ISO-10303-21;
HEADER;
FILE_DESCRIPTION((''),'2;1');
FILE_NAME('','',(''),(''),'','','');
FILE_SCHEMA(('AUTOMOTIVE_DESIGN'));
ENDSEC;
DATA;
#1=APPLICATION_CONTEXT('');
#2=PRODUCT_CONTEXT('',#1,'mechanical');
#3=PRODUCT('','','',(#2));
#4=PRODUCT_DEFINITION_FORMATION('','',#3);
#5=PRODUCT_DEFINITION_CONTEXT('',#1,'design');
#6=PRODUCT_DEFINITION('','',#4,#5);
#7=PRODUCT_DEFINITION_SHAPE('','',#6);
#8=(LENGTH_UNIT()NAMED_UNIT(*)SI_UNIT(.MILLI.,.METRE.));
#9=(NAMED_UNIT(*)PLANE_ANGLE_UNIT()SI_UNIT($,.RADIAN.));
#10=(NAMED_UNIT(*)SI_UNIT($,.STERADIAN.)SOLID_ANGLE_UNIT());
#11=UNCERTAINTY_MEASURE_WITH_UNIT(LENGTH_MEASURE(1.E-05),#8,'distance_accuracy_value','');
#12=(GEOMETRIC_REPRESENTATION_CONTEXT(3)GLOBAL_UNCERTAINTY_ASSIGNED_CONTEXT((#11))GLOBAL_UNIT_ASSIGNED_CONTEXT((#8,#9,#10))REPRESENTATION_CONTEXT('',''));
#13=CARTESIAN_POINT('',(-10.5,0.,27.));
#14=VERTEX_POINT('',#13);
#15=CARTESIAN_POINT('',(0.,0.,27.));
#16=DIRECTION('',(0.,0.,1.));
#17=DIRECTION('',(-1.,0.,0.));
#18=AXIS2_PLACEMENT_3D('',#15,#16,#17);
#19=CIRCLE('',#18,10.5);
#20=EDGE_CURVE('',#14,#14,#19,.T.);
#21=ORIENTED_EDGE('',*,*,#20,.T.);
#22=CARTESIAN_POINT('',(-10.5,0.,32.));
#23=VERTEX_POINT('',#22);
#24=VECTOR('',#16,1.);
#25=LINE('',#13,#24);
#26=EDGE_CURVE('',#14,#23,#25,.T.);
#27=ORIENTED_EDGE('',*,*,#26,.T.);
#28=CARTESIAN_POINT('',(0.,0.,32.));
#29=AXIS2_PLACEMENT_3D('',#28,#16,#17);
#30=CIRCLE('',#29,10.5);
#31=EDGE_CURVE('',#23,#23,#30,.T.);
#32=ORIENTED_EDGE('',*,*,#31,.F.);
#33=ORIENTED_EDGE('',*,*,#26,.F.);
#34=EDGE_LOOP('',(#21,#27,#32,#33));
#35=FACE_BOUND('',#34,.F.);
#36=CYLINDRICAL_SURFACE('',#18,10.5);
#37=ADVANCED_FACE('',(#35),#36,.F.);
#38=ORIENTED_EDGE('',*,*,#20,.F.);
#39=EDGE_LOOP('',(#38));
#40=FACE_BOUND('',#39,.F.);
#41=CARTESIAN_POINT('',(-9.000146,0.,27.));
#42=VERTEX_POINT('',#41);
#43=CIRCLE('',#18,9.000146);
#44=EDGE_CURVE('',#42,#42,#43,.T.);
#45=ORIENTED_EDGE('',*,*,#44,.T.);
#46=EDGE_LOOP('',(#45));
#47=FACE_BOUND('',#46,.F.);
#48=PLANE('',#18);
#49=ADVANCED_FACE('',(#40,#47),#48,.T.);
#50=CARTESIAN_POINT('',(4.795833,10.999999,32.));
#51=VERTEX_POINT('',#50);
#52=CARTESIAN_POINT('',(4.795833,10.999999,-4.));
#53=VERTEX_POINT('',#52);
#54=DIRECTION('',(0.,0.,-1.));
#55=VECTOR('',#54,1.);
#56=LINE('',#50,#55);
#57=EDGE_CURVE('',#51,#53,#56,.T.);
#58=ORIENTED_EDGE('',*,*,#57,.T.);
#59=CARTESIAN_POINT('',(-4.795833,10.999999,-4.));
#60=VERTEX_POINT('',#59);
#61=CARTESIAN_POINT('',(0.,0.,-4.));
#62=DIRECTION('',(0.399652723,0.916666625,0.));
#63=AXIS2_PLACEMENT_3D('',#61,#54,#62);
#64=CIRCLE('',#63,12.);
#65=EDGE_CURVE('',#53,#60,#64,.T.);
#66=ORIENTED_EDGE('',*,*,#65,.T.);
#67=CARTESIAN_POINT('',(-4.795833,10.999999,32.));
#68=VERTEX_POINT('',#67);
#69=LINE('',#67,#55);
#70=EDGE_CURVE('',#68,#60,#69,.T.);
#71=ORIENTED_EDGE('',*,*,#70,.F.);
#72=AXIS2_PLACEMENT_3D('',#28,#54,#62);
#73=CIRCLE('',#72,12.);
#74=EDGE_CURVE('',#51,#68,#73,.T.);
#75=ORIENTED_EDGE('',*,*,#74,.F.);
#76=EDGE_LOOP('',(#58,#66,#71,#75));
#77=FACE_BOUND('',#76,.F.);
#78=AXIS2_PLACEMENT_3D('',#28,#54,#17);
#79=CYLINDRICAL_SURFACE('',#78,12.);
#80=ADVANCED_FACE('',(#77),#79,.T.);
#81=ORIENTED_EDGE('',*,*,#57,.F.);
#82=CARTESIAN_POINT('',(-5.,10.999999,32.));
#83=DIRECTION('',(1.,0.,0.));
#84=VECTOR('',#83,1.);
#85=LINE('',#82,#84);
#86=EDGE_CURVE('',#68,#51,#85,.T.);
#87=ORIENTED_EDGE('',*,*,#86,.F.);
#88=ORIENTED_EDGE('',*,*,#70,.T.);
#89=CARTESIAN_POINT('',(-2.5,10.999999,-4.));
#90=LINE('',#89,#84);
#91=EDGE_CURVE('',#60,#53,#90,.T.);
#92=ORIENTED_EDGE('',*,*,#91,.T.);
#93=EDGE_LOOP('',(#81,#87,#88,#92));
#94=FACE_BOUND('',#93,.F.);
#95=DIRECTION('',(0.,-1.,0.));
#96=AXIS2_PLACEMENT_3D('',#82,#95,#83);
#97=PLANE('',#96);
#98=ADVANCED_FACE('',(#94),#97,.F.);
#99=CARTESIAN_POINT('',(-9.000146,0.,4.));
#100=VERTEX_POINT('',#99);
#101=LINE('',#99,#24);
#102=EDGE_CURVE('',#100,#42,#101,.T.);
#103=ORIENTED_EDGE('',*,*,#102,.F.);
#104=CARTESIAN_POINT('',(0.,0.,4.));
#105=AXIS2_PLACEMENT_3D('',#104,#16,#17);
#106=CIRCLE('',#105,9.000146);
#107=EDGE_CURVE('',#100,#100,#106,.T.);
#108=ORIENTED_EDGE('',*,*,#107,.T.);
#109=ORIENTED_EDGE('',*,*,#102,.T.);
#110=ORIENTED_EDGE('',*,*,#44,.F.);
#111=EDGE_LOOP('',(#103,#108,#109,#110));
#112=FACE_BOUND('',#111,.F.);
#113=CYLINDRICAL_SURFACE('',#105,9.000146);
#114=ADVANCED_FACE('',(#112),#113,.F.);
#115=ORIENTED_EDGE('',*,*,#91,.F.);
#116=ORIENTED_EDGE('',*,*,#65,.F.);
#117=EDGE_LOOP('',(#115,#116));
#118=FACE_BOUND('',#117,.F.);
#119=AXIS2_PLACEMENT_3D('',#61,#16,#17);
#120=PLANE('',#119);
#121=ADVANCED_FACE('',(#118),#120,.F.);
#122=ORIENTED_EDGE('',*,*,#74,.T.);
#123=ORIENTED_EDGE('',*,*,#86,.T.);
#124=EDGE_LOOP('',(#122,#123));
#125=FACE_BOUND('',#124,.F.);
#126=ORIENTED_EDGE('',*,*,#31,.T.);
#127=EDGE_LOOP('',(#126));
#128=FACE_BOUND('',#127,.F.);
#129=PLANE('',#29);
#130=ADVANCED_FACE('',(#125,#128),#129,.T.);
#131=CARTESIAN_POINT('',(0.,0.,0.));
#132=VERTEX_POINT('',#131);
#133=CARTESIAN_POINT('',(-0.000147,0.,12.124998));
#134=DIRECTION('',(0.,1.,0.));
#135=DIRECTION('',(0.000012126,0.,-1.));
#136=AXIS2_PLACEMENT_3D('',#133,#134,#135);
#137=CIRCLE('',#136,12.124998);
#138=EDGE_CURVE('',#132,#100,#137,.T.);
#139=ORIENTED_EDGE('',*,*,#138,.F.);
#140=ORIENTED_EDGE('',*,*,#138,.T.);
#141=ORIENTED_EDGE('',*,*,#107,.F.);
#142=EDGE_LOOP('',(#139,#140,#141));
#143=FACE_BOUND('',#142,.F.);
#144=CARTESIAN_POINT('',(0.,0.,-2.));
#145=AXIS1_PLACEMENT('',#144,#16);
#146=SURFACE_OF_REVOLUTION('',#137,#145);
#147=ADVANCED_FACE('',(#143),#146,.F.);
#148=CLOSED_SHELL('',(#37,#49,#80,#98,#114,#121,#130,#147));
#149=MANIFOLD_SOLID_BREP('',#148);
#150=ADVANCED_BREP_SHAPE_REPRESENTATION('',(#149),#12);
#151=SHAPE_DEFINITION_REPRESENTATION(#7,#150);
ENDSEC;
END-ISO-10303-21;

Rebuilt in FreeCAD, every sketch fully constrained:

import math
import FreeCAD as App
import Part
import Sketcher
from FreeCAD import Vector


def add_polygon(sketch, points):
    """Adds a closed chain of lines whose ends are joined by coincident constraints."""
    first, n = sketch.GeometryCount, len(points)
    for a, b in zip(points, points[1:] + points[:1]):
        sketch.addGeometry(Part.LineSegment(App.Vector(*a, 0), App.Vector(*b, 0)), False)
    for i in range(n):
        sketch.addConstraint(Sketcher.Constraint("Coincident", first + i, 2, first + (i + 1) % n, 1))

doc = App.newDocument("Part")
body = doc.addObject("PartDesign::Body", "Body")

sketch1 = body.newObject("Sketcher::SketchObject", "Sketch")
sketch1.AttachmentSupport = (doc.getObject("XZ_Plane"), [""])
sketch1.MapMode = "FlatFace"
sketch1.addGeometry(Part.LineSegment(Vector(-12, -4, 0), Vector(0, -4, 0)), False)
sketch1.addGeometry(Part.LineSegment(Vector(0, -4, 0), Vector(0, 0, 0)), False)
sketch1.addGeometry(Part.ArcOfCircle(Part.Circle(Vector(-0.000147, 12.124998, 0), Vector(0, 0, 1), 12.124998), math.radians(-137.924983), math.radians(-89.999305)), False)
sketch1.addGeometry(Part.LineSegment(Vector(-9.000146, 4, 0), Vector(-9.000146, 27, 0)), False)
sketch1.addGeometry(Part.LineSegment(Vector(-9.000146, 27, 0), Vector(-10.5, 27, 0)), False)
sketch1.addGeometry(Part.LineSegment(Vector(-10.5, 27, 0), Vector(-10.5, 32, 0)), False)
sketch1.addGeometry(Part.LineSegment(Vector(-10.5, 32, 0), Vector(-12, 32, 0)), False)
sketch1.addGeometry(Part.LineSegment(Vector(-12, 32, 0), Vector(-12, -4, 0)), False)
sketch1.addConstraint(Sketcher.Constraint("Coincident", 0, 2, 1, 1))
sketch1.addConstraint(Sketcher.Constraint("Coincident", 1, 2, 2, 2))
sketch1.addConstraint(Sketcher.Constraint("Coincident", 2, 1, 3, 1))
sketch1.addConstraint(Sketcher.Constraint("Coincident", 3, 2, 4, 1))
sketch1.addConstraint(Sketcher.Constraint("Coincident", 4, 2, 5, 1))
sketch1.addConstraint(Sketcher.Constraint("Coincident", 5, 2, 6, 1))
sketch1.addConstraint(Sketcher.Constraint("Coincident", 6, 2, 7, 1))
sketch1.addConstraint(Sketcher.Constraint("Coincident", 7, 2, 0, 1))
sketch1.addConstraint(Sketcher.Constraint("Horizontal", 0))
sketch1.addConstraint(Sketcher.Constraint("Vertical", 1))
sketch1.addConstraint(Sketcher.Constraint("Vertical", 3))
sketch1.addConstraint(Sketcher.Constraint("Horizontal", 4))
sketch1.addConstraint(Sketcher.Constraint("Vertical", 5))
sketch1.addConstraint(Sketcher.Constraint("Horizontal", 6))
sketch1.addConstraint(Sketcher.Constraint("Vertical", 7))
sketch1.addConstraint(Sketcher.Constraint("Coincident", 1, 2, -1, 1))
sketch1.addConstraint(Sketcher.Constraint("DistanceX", 0, 1, 0, 2, 12.0))
sketch1.addConstraint(Sketcher.Constraint("DistanceY", 1, 1, 1, 2, 4.0))
sketch1.addConstraint(Sketcher.Constraint("DistanceY", 3, 1, 3, 2, 23.0))
sketch1.addConstraint(Sketcher.Constraint("DistanceY", 5, 1, 5, 2, 5.0))
sketch1.addConstraint(Sketcher.Constraint("DistanceY", 7, 2, 7, 1, 36.0))
sketch1.addConstraint(Sketcher.Constraint("DistanceX", 6, 2, 6, 1, 1.5))
sketch1.addConstraint(Sketcher.Constraint("DistanceX", 2, 1, 2, 3, 8.999999))
sketch1.addConstraint(Sketcher.Constraint("DistanceX", 4, 2, 4, 1, 1.499854))
revolution = body.newObject("PartDesign::Revolution", "Revolution")
revolution.Profile = sketch1
revolution.ReferenceAxis = (sketch1, ["V_Axis"])
revolution.Angle = 360

sketch2 = body.newObject("Sketcher::SketchObject", "Sketch001")
sketch2.AttachmentSupport = (doc.getObject("XY_Plane"), [""])
sketch2.MapMode = "FlatFace"
sketch2.AttachmentOffset = App.Placement(Vector(0, 0, 32), App.Rotation())
add_polygon(sketch2, [(5, 10.999999), (5, 12.851494), (-5, 12.851494), (-5, 10.999999)])
sketch2.addConstraint(Sketcher.Constraint("Vertical", 0))
sketch2.addConstraint(Sketcher.Constraint("Horizontal", 1))
sketch2.addConstraint(Sketcher.Constraint("Vertical", 2))
sketch2.addConstraint(Sketcher.Constraint("Horizontal", 3))
sketch2.addConstraint(Sketcher.Constraint("DistanceX", 1, 2, 1, 1, 10.0))
sketch2.addConstraint(Sketcher.Constraint("DistanceX", -1, 1, 0, 2, 5.0))
sketch2.addConstraint(Sketcher.Constraint("DistanceY", -1, 1, 2, 2, 10.999999))
sketch2.addConstraint(Sketcher.Constraint("DistanceY", 0, 1, 0, 2, 1.851495))
pocket1 = body.newObject("PartDesign::Pocket", "Pocket")
pocket1.Profile = sketch2
pocket1.Length = 38

doc.recompute()
